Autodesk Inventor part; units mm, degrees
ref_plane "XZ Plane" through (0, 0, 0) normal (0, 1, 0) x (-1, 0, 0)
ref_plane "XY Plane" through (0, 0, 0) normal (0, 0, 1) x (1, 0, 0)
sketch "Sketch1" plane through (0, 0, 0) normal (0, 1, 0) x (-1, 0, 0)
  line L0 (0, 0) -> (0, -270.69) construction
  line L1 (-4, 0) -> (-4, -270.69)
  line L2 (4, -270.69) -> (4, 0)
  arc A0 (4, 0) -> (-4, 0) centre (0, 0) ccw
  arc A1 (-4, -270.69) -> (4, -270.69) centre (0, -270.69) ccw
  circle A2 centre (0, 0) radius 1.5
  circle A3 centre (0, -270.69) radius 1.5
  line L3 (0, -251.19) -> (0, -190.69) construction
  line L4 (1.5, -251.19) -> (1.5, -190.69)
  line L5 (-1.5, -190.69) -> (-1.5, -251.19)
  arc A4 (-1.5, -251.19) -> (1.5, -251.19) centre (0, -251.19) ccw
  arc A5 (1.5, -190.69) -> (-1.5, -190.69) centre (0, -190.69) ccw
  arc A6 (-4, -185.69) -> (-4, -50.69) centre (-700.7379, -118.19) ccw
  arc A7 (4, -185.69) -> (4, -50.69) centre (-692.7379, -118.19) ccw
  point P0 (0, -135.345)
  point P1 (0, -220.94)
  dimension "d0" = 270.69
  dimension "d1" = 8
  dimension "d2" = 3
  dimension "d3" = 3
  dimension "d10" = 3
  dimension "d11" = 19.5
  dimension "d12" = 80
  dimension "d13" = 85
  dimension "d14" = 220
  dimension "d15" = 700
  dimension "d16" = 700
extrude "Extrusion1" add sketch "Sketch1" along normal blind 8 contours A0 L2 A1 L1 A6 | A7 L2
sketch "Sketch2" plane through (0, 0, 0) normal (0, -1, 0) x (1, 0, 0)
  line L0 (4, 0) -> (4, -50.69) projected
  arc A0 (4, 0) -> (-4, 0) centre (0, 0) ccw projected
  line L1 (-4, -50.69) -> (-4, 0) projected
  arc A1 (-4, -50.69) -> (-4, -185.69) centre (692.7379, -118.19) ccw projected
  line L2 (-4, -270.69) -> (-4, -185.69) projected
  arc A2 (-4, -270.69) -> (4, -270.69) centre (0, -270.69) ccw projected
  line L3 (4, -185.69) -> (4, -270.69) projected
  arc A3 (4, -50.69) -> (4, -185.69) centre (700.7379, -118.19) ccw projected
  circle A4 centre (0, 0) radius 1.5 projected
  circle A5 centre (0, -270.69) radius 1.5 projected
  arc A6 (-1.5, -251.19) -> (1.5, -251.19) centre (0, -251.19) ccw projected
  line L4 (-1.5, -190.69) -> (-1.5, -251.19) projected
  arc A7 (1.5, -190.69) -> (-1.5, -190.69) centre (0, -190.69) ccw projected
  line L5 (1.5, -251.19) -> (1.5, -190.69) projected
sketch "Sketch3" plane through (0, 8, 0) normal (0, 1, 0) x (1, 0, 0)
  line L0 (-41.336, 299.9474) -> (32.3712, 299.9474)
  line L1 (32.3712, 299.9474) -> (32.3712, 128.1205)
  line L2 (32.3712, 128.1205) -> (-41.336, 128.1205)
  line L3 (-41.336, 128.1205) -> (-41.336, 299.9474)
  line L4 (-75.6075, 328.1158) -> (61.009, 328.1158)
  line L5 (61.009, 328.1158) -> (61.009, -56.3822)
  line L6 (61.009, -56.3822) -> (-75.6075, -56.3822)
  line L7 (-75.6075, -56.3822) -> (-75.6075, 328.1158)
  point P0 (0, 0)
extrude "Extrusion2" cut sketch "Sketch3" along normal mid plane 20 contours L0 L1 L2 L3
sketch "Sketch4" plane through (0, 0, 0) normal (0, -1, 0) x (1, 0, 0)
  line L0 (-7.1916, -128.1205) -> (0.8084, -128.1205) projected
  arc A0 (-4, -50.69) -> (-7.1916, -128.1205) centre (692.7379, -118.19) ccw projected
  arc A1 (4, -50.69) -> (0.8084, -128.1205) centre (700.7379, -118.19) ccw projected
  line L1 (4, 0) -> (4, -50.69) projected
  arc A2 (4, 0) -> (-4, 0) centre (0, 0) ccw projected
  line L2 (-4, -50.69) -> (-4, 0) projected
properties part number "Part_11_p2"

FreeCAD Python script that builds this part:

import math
import FreeCAD as App
import Part
import Sketcher

V = App.Vector
Q = App.Units.Quantity

doc = App.newDocument("Part")
body = doc.addObject("PartDesign::Body", "Body")

# Sketch on XZ plane
sketch1 = doc.addObject("Sketcher::SketchObject", "Sketch")
body.addObject(sketch1)
sketch1.AttachmentSupport = (doc.XZ_Plane, [""])
sketch1.MapMode = "FlatFace"
sketch1.addGeometry([
    Part.ArcOfCircle(Part.Circle(V(0, 0, 0), V(0, 0, 1), 4), math.radians(0), math.radians(180)),  # 0
    Part.LineSegment(V(4, 0, 0), V(4, -50.69, 0)),  # 1
    Part.ArcOfCircle(Part.Circle(V(700.7379, -118.19, 0), V(0, 0, 1), 699.999965), math.radians(174.466451), math.radians(185.533549)),  # 2
    Part.LineSegment(V(4, -185.69, 0), V(4, -270.69, 0)),  # 3
    Part.ArcOfCircle(Part.Circle(V(0, -270.69, 0), V(0, 0, 1), 4), math.radians(180), math.radians(360)),  # 4
    Part.LineSegment(V(-4, -270.69, 0), V(-4, -185.69, 0)),  # 5
    Part.ArcOfCircle(Part.Circle(V(692.7379, -118.19, 0), V(0, 0, 1), 699.999965), math.radians(174.466451), math.radians(185.533549)),  # 6
    Part.LineSegment(V(-4, -50.69, 0), V(-4, 0, 0)),  # 7
    Part.Circle(V(0, -270.69, 0), V(0, 0, 1), 1.5),  # 8
    Part.LineSegment(V(-1.5, -190.69, 0), V(-1.5, -251.19, 0)),  # 9
    Part.ArcOfCircle(Part.Circle(V(0, -251.19, 0), V(0, 0, 1), 1.5), math.radians(180), math.radians(360)),  # 10
    Part.LineSegment(V(1.5, -251.19, 0), V(1.5, -190.69, 0)),  # 11
    Part.ArcOfCircle(Part.Circle(V(0, -190.69, 0), V(0, 0, 1), 1.5), math.radians(0), math.radians(180)),  # 12
    Part.Circle(V(0, 0, 0), V(0, 0, 1), 1.5),  # 13
], False)
sketch1.addConstraint([
    Sketcher.Constraint("Tangent", 0, 1, 1, 1),
    Sketcher.Constraint("Coincident", 1, 2, 2, 1),
    Sketcher.Constraint("Coincident", 2, 2, 3, 1),
    Sketcher.Constraint("Tangent", 3, 2, 4, 2),
    Sketcher.Constraint("Tangent", 4, 1, 5, 1),
    Sketcher.Constraint("Coincident", 5, 2, 6, 2),
    Sketcher.Constraint("Coincident", 6, 1, 7, 1),
    Sketcher.Constraint("Tangent", 7, 2, 0, 2),
    Sketcher.Constraint("Tangent", 9, 2, 10, 1),
    Sketcher.Constraint("Tangent", 10, 2, 11, 1),
    Sketcher.Constraint("Tangent", 11, 2, 12, 1),
    Sketcher.Constraint("Tangent", 12, 2, 9, 1),
    Sketcher.Constraint("Vertical", 1),
    Sketcher.Constraint("Vertical", 3),
    Sketcher.Constraint("Vertical", 5),
    Sketcher.Constraint("Vertical", 7),
    Sketcher.Constraint("Vertical", 9),
    Sketcher.Constraint("Vertical", 11),
    Sketcher.Constraint("Coincident", 0, 3, -1, 1),
    Sketcher.Constraint("Coincident", 13, 3, -1, 1),
    Sketcher.Constraint("Coincident", 8, 3, 4, 3),
    Sketcher.Constraint("Equal", 0, 4),
    Sketcher.Constraint("Equal", 2, 6),
    Sketcher.Constraint("Equal", 8, 10),
    Sketcher.Constraint("Equal", 12, 13),
    Sketcher.Constraint("PointOnObject", 4, 3, -2),
    Sketcher.Constraint("PointOnObject", 10, 3, -2),
    Sketcher.Constraint("Horizontal", 2, 3, 6, 3),
    Sketcher.Constraint("Equal", 3, 5),
    Sketcher.Constraint("Diameter", 8, Q("3 mm")),
    Sketcher.Constraint("Radius", 0, Q("4 mm")),
    Sketcher.Constraint("Radius", 2, Q("700 mm")),
    Sketcher.Constraint("DistanceY", 3, 2, 3, 1, Q("85 mm")),
    Sketcher.Constraint("DistanceY", 4, 3, 12, 3, Q("80 mm")),
    Sketcher.Constraint("DistanceY", 4, 3, 10, 3, Q("19.5 mm")),
    Sketcher.Constraint("DistanceY", 4, 3, -1, 1, Q("270.69 mm")),
    Sketcher.Constraint("DistanceY", 10, 3, 6, 3, Q("133 mm")),
])
pad1 = doc.addObject("PartDesign::Pad", "Pad")
body.addObject(pad1)
pad1.Profile = sketch1
pad1.Length = 8
pad1.Reversed = True

# Sketch on XZ plane
sketch2 = doc.addObject("Sketcher::SketchObject", "Sketch001")
body.addObject(sketch2)
sketch2.AttachmentSupport = (doc.XZ_Plane, [""])
sketch2.MapMode = "FlatFace"
sketch2.AttachmentOffset = App.Placement(V(0, 0, -8), App.Rotation())
sketch2.addGeometry([
    Part.LineSegment(V(32.3712, -299.9474, 0), V(-41.336, -299.9474, 0)),
    Part.LineSegment(V(-41.336, -299.9474, 0), V(-41.336, -128.1205, 0)),
    Part.LineSegment(V(-41.336, -128.1205, 0), V(32.3712, -128.1205, 0)),
    Part.LineSegment(V(32.3712, -128.1205, 0), V(32.3712, -299.9474, 0)),
], False)
sketch2.addConstraint([
    Sketcher.Constraint("Coincident", 0, 2, 1, 1),
    Sketcher.Constraint("Coincident", 1, 2, 2, 1),
    Sketcher.Constraint("Coincident", 2, 2, 3, 1),
    Sketcher.Constraint("Coincident", 3, 2, 0, 1),
    Sketcher.Constraint("Horizontal", 0),
    Sketcher.Constraint("Vertical", 1),
    Sketcher.Constraint("Horizontal", 2),
    Sketcher.Constraint("Vertical", 3),
    Sketcher.Constraint("DistanceY", 1, 1, 1, 2, Q("171.827 mm")),
    Sketcher.Constraint("DistanceX", 0, 2, 0, 1, Q("73.7072 mm")),
    Sketcher.Constraint("DistanceX", 0, 2, -1, 1, Q("41.336 mm")),
    Sketcher.Constraint("DistanceY", 0, 2, -1, 1, Q("299.9474 mm")),
])
pocket1 = doc.addObject("PartDesign::Pocket", "Pocket")
body.addObject(pocket1)
pocket1.Profile = sketch2
pocket1.Length = 20
pocket1.Midplane = True

doc.recompute()
